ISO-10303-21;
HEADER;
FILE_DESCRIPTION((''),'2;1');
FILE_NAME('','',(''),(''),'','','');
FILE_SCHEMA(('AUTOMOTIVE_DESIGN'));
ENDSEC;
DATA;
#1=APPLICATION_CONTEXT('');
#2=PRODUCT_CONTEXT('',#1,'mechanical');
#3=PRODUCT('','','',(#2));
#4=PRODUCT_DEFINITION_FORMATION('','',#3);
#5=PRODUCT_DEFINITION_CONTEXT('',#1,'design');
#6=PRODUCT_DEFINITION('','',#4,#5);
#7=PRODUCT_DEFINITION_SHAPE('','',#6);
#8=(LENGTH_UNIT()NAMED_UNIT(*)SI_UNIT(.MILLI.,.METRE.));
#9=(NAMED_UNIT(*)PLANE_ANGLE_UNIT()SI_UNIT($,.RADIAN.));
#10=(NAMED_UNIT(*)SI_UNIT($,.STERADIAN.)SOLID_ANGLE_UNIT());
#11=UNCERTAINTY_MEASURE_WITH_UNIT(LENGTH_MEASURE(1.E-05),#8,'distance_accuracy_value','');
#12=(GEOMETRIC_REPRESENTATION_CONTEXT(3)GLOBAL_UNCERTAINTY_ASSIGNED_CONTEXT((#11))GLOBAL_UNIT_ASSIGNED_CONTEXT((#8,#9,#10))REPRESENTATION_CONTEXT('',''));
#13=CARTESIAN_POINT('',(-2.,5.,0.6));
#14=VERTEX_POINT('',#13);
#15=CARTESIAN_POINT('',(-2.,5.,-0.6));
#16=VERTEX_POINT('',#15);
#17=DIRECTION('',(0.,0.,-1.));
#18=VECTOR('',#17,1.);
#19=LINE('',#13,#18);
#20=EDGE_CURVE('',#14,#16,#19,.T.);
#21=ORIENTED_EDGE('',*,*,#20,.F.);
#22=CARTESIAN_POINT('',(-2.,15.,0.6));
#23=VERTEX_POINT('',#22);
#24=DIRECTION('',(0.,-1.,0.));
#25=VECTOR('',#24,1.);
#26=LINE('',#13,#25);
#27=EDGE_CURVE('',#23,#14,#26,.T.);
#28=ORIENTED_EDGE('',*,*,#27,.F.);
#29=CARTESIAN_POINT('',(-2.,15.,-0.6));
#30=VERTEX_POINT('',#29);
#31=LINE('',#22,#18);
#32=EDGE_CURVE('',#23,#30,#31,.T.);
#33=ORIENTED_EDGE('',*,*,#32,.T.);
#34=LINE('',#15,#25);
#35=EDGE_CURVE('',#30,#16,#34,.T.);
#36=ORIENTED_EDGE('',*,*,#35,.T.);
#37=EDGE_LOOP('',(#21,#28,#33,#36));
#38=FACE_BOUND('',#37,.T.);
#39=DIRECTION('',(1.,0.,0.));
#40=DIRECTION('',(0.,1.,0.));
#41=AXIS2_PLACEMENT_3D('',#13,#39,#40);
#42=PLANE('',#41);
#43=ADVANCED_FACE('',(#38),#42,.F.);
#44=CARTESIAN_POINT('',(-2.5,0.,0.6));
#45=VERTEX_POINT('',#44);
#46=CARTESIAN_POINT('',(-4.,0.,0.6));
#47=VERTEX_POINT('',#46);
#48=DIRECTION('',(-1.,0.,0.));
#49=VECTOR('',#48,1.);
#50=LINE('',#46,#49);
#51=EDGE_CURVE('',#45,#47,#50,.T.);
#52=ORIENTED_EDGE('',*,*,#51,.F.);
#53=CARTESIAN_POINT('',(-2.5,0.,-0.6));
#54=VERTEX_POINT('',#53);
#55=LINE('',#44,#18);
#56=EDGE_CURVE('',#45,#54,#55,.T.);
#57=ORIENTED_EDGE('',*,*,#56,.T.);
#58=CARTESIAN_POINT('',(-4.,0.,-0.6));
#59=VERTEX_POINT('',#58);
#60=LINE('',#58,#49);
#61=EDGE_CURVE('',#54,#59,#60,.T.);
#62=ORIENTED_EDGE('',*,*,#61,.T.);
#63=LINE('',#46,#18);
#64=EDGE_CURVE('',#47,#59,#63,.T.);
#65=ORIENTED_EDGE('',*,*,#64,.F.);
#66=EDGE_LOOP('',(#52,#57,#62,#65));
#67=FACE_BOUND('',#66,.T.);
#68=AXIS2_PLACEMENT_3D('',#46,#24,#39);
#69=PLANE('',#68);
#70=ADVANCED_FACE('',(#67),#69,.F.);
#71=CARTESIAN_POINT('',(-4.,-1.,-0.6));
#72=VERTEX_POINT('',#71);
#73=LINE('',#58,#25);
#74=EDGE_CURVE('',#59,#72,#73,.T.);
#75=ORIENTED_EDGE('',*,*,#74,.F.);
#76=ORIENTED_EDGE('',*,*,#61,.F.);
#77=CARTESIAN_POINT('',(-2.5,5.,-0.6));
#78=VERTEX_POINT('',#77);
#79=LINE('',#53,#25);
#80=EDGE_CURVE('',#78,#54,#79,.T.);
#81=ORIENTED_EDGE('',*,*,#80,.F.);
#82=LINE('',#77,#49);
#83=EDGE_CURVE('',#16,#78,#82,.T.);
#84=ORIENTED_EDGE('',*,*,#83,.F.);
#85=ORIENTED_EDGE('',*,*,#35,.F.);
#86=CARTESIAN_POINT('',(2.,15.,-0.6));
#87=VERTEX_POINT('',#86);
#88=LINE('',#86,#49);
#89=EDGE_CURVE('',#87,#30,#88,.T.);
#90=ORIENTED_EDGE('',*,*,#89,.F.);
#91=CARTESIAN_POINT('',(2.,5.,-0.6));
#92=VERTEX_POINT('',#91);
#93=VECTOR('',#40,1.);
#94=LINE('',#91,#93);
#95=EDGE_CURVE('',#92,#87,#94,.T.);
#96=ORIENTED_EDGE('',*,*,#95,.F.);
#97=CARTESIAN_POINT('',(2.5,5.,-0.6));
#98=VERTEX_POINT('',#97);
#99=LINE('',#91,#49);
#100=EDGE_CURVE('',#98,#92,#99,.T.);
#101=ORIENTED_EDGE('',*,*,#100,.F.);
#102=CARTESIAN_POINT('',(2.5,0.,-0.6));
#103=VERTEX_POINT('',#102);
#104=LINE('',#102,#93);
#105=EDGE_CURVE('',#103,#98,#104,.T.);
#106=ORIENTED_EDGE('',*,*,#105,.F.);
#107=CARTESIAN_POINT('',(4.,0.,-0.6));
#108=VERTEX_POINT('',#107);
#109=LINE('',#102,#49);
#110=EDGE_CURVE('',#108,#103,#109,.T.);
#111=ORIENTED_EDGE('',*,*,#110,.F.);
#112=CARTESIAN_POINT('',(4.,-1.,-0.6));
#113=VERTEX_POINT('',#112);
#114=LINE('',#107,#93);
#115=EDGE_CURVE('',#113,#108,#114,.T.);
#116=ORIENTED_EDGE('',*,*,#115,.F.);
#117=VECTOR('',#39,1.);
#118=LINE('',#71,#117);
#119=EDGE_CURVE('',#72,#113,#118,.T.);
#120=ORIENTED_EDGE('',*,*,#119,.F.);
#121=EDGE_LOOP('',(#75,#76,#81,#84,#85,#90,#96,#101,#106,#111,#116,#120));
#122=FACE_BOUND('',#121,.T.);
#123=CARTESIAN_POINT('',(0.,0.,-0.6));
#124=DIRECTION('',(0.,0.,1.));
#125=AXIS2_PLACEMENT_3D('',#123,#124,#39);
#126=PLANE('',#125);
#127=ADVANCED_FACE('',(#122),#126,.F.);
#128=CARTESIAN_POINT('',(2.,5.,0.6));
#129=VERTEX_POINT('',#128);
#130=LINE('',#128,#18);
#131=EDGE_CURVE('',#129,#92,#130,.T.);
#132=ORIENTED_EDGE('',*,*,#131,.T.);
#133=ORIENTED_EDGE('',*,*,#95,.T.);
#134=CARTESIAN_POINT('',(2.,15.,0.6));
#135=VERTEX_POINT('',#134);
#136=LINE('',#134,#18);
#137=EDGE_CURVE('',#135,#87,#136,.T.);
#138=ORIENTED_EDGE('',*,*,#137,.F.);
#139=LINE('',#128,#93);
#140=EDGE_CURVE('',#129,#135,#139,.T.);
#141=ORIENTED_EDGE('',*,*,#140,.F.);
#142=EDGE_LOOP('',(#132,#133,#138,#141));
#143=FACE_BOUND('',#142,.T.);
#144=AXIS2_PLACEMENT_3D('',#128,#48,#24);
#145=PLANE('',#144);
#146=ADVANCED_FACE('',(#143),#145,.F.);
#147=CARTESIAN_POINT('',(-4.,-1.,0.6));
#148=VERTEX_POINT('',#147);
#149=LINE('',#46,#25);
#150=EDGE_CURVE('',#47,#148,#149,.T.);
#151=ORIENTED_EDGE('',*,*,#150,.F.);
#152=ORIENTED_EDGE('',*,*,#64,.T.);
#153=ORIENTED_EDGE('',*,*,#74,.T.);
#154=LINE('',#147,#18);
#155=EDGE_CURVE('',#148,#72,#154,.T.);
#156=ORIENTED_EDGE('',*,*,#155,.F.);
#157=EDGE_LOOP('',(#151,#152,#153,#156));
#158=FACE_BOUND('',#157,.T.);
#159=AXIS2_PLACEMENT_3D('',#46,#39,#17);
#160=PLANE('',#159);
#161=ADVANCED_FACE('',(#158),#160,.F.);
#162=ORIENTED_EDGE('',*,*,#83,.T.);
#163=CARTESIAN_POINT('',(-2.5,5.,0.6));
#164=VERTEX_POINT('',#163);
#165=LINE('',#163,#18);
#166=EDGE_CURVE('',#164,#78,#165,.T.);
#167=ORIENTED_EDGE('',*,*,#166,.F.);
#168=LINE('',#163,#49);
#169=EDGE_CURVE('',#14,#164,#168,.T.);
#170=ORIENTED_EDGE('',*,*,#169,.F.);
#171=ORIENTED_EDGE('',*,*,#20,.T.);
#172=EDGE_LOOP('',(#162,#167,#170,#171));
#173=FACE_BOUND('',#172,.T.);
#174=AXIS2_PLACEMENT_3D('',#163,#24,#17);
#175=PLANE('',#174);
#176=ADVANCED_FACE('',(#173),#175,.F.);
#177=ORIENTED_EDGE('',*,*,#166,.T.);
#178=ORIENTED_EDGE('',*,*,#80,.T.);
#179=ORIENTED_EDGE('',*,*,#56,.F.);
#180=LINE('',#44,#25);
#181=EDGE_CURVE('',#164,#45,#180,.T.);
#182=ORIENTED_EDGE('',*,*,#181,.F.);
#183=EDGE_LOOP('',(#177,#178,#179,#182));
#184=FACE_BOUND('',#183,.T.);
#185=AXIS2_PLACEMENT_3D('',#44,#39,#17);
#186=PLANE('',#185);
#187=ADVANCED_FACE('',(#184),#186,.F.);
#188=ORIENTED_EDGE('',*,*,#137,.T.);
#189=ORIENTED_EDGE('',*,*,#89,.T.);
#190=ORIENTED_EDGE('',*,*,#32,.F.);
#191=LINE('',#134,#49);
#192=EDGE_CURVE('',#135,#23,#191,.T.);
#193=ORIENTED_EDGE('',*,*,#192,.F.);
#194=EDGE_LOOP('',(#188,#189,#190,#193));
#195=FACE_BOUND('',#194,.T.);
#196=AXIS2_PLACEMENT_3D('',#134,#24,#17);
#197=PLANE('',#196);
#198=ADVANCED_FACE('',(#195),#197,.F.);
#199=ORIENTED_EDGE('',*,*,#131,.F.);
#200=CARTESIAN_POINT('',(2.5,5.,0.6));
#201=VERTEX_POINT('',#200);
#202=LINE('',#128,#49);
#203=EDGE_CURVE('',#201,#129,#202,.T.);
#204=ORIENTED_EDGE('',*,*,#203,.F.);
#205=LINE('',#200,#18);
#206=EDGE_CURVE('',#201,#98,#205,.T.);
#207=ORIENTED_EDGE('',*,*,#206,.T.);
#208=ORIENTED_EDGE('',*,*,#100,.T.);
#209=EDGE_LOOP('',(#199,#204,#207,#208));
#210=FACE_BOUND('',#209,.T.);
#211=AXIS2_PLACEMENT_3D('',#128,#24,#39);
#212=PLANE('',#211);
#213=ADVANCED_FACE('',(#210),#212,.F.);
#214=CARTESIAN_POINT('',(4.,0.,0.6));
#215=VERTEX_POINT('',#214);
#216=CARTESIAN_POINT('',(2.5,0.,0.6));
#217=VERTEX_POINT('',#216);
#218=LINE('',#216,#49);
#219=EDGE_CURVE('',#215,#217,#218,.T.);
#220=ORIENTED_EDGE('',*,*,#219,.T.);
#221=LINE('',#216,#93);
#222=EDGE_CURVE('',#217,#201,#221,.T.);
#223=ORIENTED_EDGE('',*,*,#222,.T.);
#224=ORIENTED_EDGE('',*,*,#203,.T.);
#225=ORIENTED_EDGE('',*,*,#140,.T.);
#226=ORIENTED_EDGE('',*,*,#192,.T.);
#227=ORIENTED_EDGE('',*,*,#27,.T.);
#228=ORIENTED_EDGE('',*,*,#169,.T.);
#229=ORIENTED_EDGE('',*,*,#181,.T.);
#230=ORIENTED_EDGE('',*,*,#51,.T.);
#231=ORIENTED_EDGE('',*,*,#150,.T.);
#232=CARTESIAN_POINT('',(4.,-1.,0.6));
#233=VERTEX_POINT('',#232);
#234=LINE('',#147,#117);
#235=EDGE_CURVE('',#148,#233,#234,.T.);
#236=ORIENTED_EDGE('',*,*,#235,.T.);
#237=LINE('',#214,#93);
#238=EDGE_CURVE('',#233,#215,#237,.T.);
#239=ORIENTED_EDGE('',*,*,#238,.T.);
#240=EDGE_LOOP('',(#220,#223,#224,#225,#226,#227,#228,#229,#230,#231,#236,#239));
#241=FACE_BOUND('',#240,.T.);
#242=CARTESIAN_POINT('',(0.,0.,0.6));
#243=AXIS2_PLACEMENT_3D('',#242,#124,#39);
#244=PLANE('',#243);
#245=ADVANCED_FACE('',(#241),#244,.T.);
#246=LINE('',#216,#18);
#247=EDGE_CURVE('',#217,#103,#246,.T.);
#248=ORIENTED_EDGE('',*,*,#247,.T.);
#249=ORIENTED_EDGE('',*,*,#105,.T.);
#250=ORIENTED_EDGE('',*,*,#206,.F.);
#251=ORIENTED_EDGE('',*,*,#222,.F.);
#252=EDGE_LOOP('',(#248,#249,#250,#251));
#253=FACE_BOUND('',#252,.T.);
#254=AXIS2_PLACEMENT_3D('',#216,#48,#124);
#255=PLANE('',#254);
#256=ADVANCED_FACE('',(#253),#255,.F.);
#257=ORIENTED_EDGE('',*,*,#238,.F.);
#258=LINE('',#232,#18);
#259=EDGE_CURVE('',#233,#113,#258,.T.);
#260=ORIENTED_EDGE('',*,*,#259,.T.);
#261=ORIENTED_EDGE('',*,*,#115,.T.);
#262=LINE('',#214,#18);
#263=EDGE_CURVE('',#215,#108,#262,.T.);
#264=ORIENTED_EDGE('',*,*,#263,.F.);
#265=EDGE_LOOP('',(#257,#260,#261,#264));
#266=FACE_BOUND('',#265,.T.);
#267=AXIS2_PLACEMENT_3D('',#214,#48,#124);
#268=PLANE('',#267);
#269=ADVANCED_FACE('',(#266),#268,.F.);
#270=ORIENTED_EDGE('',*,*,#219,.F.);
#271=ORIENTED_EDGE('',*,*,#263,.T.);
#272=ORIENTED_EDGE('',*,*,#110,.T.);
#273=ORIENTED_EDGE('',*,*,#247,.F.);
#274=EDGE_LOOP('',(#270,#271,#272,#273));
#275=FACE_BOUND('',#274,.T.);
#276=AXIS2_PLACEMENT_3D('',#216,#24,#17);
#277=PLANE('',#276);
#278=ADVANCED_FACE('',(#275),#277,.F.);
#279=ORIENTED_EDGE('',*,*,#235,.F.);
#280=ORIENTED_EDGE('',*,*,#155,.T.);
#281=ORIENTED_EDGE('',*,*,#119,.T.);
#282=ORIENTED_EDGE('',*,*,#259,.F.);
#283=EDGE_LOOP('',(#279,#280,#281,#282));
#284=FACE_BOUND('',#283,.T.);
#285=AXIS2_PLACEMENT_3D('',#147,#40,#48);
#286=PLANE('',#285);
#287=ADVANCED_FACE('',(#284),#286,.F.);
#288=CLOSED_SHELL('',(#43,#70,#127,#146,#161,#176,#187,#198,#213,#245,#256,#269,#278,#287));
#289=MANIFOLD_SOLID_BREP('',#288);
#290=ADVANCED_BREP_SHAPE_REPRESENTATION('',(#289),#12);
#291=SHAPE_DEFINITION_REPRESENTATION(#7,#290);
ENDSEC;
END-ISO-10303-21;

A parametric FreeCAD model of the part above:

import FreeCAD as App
import Part
import Sketcher
Q = App.Units.Quantity


def add_polygon(sketch, points):
    """Adds a closed chain of lines whose ends are joined by coincident constraints."""
    first, n = sketch.GeometryCount, len(points)
    for a, b in zip(points, points[1:] + points[:1]):
        sketch.addGeometry(Part.LineSegment(App.Vector(*a, 0), App.Vector(*b, 0)), False)
    for i in range(n):
        sketch.addConstraint(Sketcher.Constraint("Coincident", first + i, 2, first + (i + 1) % n, 1))

doc = App.newDocument("Part")
body = doc.addObject("PartDesign::Body", "Body")

sketch1 = body.newObject("Sketcher::SketchObject", "Sketch")
sketch1.AttachmentSupport = (doc.getObject("XY_Plane"), [""])
sketch1.MapMode = "FlatFace"
add_polygon(sketch1, [(-2.5, 5), (-2.5, 0), (-4, 0), (-4, -1), (4, -1), (4, 0), (2.5, 0), (2.5, 5), (2, 5), (2, 15), (-2, 15), (-2, 5)])
sketch1.addConstraint([
    Sketcher.Constraint("Vertical", 0),
    Sketcher.Constraint("Horizontal", 1),
    Sketcher.Constraint("Vertical", 2),
    Sketcher.Constraint("Horizontal", 3),
    Sketcher.Constraint("Vertical", 4),
    Sketcher.Constraint("Horizontal", 5),
    Sketcher.Constraint("Vertical", 6),
    Sketcher.Constraint("Horizontal", 7),
    Sketcher.Constraint("Vertical", 8),
    Sketcher.Constraint("Horizontal", 9),
    Sketcher.Constraint("Vertical", 10),
    Sketcher.Constraint("Horizontal", 11),
    Sketcher.Constraint("Symmetric", 1, 2, 4, 2, -1, 1),
    Sketcher.Constraint("Symmetric", 0, 2, 5, 2, -2),
    Sketcher.Constraint("Symmetric", 7, 2, 10, 2, -2),
    Sketcher.Constraint("DistanceX", 3, 1, 3, 2, Q("8 mm")),
    Sketcher.Constraint("DistanceX", 9, 2, 9, 1, Q("4 mm")),
    Sketcher.Constraint("DistanceY", 0, 2, 0, 1, Q("5 mm")),
    Sketcher.Constraint("DistanceY", 2, 2, 2, 1, Q("1 mm")),
    Sketcher.Constraint("DistanceY", 8, 1, 8, 2, Q("10 mm")),
    Sketcher.Constraint("DistanceX", 1, 2, 1, 1, Q("1.5 mm")),
])
pad1 = body.newObject("PartDesign::Pad", "Pad")
pad1.Profile = sketch1
pad1.Length = 1.2
pad1.Midplane = True

doc.recompute()
